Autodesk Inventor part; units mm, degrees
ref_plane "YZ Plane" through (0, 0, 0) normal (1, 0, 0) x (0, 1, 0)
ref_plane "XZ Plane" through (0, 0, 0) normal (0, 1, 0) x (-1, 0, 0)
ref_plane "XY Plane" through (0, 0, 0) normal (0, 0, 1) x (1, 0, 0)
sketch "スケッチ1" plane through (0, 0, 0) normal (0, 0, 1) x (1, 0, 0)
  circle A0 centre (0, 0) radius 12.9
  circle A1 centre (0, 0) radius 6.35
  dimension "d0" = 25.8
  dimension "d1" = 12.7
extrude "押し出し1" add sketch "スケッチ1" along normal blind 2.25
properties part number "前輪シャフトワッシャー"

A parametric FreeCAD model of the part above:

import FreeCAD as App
import Part
import Sketcher
from FreeCAD import Vector

doc = App.newDocument("Part")
body = doc.addObject("PartDesign::Body", "Body")

# Sketch on XY plane
sketch1 = body.newObject("Sketcher::SketchObject", "Sketch")
sketch1.AttachmentSupport = (doc.getObject("XY_Plane"), [""])
sketch1.MapMode = "FlatFace"
sketch1.addGeometry([
    Part.Circle(Vector(0, 0, 0), Vector(0, 0, 1), 12.9),
    Part.Circle(Vector(0, 0, 0), Vector(0, 0, 1), 6.35),
], False)
sketch1.addConstraint([
    Sketcher.Constraint("Coincident", 0, 3, -1, 1),
    Sketcher.Constraint("Coincident", 1, 3, -1, 1),
    Sketcher.Constraint("Diameter", 0, 25.8),
    Sketcher.Constraint("Diameter", 1, 12.7),
])
pad1 = body.newObject("PartDesign::Pad", "Pad")
pad1.Profile = sketch1
pad1.Length = 2.25

doc.recompute()
